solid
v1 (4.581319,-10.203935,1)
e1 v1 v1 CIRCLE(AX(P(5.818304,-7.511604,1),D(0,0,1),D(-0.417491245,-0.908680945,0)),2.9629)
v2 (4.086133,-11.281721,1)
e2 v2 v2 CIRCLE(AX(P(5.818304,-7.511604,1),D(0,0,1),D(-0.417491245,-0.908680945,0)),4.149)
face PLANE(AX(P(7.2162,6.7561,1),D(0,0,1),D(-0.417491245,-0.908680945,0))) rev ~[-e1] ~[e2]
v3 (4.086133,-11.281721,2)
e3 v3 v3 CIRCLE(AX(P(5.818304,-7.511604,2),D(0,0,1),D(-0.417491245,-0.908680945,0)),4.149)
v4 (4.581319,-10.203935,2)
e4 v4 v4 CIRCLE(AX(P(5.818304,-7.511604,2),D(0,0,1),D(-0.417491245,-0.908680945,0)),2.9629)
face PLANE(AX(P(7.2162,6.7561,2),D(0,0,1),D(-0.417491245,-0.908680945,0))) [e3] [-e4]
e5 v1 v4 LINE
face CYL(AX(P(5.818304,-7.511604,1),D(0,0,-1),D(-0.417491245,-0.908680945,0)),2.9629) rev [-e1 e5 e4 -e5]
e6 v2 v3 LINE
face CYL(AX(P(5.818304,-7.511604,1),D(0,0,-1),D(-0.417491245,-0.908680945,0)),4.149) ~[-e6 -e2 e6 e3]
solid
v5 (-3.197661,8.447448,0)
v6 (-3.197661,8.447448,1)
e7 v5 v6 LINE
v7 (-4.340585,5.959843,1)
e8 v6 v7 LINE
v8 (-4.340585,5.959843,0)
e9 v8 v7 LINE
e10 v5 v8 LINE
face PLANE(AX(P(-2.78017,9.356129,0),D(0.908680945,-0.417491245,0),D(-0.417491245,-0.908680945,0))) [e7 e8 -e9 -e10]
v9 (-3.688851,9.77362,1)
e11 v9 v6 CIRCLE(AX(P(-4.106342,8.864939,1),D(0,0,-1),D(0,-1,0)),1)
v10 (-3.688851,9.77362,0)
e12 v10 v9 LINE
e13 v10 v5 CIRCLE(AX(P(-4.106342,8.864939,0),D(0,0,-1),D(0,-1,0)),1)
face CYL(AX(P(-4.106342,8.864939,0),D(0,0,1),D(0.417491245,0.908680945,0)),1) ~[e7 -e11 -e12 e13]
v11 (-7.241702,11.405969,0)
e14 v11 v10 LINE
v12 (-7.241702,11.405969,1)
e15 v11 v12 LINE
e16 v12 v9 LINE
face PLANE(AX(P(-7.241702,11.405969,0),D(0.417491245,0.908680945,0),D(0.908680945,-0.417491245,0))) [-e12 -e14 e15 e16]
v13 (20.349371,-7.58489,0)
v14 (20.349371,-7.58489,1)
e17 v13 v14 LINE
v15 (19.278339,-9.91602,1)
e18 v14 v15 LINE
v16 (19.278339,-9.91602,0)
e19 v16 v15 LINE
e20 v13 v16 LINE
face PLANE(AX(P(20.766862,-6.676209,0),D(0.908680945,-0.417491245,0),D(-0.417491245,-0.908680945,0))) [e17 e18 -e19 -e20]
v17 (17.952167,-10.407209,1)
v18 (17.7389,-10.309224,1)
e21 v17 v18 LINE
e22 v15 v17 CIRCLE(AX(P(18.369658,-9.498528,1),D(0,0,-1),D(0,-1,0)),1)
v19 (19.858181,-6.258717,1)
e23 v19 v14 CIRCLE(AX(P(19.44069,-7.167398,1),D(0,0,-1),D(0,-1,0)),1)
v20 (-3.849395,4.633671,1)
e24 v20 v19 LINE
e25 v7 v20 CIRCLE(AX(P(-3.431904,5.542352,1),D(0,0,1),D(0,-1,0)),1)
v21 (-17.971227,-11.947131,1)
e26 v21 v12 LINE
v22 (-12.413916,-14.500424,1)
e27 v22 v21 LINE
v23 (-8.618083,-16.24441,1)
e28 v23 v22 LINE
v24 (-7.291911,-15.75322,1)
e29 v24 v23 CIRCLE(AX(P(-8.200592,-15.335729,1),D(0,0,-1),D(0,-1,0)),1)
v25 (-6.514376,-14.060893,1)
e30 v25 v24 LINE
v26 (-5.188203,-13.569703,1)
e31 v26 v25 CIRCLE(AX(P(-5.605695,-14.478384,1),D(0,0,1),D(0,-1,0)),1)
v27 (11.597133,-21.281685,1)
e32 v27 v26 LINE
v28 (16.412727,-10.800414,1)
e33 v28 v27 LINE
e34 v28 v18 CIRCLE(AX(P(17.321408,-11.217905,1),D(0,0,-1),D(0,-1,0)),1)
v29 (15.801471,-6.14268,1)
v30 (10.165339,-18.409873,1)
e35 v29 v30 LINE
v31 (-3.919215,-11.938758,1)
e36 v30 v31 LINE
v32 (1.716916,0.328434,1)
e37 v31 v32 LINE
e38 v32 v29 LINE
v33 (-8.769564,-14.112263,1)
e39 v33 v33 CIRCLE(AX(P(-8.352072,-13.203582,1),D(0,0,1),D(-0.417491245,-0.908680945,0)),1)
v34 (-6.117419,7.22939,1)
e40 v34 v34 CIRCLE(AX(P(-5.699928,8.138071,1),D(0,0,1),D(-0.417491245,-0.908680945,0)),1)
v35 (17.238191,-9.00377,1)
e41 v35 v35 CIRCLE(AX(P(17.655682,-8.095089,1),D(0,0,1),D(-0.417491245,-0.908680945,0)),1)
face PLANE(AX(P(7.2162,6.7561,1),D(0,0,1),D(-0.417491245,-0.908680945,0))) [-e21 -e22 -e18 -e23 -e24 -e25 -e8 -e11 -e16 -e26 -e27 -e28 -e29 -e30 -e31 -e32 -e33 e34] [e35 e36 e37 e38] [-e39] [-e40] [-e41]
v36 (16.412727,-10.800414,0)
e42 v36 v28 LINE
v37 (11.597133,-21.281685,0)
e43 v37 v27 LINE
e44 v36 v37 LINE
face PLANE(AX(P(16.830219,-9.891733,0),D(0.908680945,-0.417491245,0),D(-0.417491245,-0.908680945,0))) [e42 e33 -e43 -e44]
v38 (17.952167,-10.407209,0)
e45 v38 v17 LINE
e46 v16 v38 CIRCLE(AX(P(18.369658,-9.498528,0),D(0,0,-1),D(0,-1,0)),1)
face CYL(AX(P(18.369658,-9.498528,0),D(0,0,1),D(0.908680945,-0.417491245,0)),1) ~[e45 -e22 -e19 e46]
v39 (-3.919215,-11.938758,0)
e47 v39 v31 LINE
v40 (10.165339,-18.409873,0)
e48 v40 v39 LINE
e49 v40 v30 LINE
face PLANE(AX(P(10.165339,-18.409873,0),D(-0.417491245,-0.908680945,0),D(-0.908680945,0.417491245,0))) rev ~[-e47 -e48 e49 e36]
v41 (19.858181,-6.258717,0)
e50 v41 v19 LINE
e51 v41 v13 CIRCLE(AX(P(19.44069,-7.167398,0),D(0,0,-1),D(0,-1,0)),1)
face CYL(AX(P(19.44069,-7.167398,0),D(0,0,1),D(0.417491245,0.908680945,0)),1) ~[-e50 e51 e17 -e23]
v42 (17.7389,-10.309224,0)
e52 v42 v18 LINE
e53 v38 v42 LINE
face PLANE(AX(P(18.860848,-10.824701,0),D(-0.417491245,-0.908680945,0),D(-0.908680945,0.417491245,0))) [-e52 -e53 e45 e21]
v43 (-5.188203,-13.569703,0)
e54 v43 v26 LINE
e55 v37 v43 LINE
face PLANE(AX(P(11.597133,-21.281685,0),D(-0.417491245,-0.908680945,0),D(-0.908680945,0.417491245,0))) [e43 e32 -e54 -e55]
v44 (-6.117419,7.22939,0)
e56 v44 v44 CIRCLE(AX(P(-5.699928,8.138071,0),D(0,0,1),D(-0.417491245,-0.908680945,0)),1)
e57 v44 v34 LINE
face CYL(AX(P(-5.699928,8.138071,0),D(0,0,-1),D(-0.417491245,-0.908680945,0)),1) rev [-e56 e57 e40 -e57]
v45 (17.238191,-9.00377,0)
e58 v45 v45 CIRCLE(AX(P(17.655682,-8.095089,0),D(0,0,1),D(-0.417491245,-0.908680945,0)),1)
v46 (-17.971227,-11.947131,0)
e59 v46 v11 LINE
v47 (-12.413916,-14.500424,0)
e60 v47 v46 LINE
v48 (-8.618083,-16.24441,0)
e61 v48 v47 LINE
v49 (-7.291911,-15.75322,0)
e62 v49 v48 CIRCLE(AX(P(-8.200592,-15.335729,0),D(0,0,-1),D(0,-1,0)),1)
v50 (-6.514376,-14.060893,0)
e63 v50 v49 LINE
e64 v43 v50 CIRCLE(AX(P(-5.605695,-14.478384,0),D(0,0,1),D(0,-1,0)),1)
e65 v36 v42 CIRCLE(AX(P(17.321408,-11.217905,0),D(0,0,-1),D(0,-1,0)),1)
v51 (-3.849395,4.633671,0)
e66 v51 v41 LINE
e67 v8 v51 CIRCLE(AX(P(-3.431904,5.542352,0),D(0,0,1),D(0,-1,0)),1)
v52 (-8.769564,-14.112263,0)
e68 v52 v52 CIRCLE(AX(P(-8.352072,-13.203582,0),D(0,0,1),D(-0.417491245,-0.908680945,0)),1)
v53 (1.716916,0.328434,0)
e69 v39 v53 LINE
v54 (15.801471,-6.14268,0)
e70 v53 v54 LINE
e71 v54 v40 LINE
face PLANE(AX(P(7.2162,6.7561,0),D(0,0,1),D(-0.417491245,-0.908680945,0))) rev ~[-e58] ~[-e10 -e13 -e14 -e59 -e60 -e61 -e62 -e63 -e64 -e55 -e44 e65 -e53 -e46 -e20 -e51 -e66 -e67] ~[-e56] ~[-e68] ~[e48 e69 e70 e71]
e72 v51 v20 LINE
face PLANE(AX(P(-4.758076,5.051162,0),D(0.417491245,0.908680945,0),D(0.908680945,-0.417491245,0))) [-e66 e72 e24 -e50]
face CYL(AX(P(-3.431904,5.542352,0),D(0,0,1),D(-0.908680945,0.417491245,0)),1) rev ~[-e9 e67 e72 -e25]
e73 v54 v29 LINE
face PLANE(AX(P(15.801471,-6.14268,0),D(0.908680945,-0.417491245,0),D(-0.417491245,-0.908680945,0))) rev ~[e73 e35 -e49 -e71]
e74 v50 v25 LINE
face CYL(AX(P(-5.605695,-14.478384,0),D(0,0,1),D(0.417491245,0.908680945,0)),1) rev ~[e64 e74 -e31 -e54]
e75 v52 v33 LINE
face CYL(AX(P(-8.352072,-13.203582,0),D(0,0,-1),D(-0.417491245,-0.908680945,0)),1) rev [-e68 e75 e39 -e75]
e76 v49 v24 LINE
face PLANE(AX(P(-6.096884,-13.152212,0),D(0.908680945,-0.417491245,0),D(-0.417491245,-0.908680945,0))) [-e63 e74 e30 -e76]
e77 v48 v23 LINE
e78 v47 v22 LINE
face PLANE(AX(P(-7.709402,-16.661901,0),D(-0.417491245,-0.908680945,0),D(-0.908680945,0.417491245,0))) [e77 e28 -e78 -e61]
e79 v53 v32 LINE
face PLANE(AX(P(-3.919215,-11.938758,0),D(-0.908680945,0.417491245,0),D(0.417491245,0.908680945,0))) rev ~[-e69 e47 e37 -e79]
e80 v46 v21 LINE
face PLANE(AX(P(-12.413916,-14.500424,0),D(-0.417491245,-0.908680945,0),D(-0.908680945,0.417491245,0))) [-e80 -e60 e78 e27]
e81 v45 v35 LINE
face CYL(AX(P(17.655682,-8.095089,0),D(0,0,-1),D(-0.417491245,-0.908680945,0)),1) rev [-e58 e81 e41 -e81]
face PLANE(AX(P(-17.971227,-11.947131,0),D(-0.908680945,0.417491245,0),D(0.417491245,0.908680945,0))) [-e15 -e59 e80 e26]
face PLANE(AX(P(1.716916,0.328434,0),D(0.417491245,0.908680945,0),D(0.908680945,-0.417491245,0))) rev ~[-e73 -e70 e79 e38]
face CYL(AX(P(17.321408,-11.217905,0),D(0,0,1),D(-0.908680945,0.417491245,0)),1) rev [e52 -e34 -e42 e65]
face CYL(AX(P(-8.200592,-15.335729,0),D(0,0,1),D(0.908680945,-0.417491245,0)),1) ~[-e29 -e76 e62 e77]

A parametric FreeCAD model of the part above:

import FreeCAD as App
import Part
import Sketcher


def edges_at(feature, points):
    """Names of the edges that pass closest to the given points."""
    edges = feature.Shape.Edges
    near = lambda p: min(range(len(edges)), key=lambda i: edges[i].distToShape(Part.Vertex(*p))[0])
    return sorted({f"Edge{near(p) + 1}" for p in points})

doc = App.newDocument("Part")
params = doc.addObject("Spreadsheet::Sheet", "Params")
for row, (alias, value) in enumerate([
    ("sketch1_diameter", "2 mm"),
    ("sketch1_diameter2", "2 mm"),
    ("sketch1_diameter3", "2 mm"),
    ("sketch1_length", "25.7 mm"),
    ("sketch1_length2", "15.5 mm"),
    ("pad1_length", "1 mm"),
    ("fillet_radius", "1 mm"),
    ("pad2_length", "1 mm"),
], start=1):
    params.set(f"A{row}", alias)
    params.set(f"B{row}", "=" + value)
    params.setAlias(f"B{row}", alias)

body = doc.addObject("PartDesign::Body", "Body")
body.AllowCompound = True

# Sketch on XY plane
sketch1 = body.newObject("Sketcher::SketchObject", "Sketch")
sketch1.AttachmentSupport = (doc.getObject("XY_Plane"), [""])
sketch1.MapMode = "FlatFace"
sketch1.addGeometry([
    Part.LineSegment(App.Vector(11.597133, -21.281685, 0), App.Vector(16.830219, -9.891733, 0)),  # 0
    Part.LineSegment(App.Vector(16.830219, -9.891733, 0), App.Vector(18.860848, -10.824701, 0)),  # 1
    Part.LineSegment(App.Vector(18.860848, -10.824701, 0), App.Vector(20.766862, -6.676209, 0)),  # 2
    Part.LineSegment(App.Vector(20.766862, -6.676209, 0), App.Vector(-4.758076, 5.051162, 0)),  # 3
    Part.LineSegment(App.Vector(-4.758076, 5.051162, 0), App.Vector(-2.78017, 9.356129, 0)),  # 4
    Part.LineSegment(App.Vector(-2.78017, 9.356129, 0), App.Vector(-7.241702, 11.405969, 0)),  # 5
    Part.LineSegment(App.Vector(-7.241702, 11.405969, 0), App.Vector(-17.971227, -11.947131, 0)),  # 6
    Part.LineSegment(App.Vector(-17.971227, -11.947131, 0), App.Vector(-7.709402, -16.661901, 0)),  # 7
    Part.LineSegment(App.Vector(-7.709402, -16.661901, 0), App.Vector(-6.096884, -13.152212, 0)),  # 8
    Part.LineSegment(App.Vector(-6.096884, -13.152212, 0), App.Vector(11.597133, -21.281685, 0)),  # 9
    Part.Circle(App.Vector(-5.699928, 8.138071, 0), App.Vector(0, 0, 1), 1),  # 10
    Part.Circle(App.Vector(-8.352072, -13.203582, 0), App.Vector(0, 0, 1), 1),  # 11
    Part.Circle(App.Vector(17.655682, -8.095089, 0), App.Vector(0, 0, 1), 1),  # 12
    Part.LineSegment(App.Vector(10.165339, -18.409873, 0), App.Vector(-3.919215, -11.938758, 0)),  # 13
    Part.LineSegment(App.Vector(-3.919215, -11.938758, 0), App.Vector(1.716917, 0.328434, 0)),  # 14
    Part.LineSegment(App.Vector(1.716917, 0.328434, 0), App.Vector(15.801471, -6.14268, 0)),  # 15
    Part.LineSegment(App.Vector(15.801471, -6.14268, 0), App.Vector(10.165339, -18.409873, 0)),  # 16
], False)
sketch1.addConstraint([
    Sketcher.Constraint("Coincident", 0, 2, 1, 1),
    Sketcher.Constraint("Coincident", 1, 2, 2, 1),
    Sketcher.Constraint("Coincident", 2, 2, 3, 1),
    Sketcher.Constraint("Coincident", 3, 2, 4, 1),
    Sketcher.Constraint("Coincident", 4, 2, 5, 1),
    Sketcher.Constraint("Coincident", 5, 2, 6, 1),
    Sketcher.Constraint("Coincident", 6, 2, 7, 1),
    Sketcher.Constraint("Coincident", 7, 2, 8, 1),
    Sketcher.Constraint("Coincident", 8, 2, 9, 1),
    Sketcher.Constraint("Coincident", 9, 2, 0, 1),
    Sketcher.Constraint("Coincident", 13, 2, 14, 1),
    Sketcher.Constraint("Coincident", 14, 2, 15, 1),
    Sketcher.Constraint("Coincident", 15, 2, 16, 1),
    Sketcher.Constraint("Coincident", 16, 2, 13, 1),
    Sketcher.Constraint("Diameter", 10, 2.0),
    Sketcher.Constraint("Diameter", 11, 2.0),
    Sketcher.Constraint("Diameter", 12, 2.0),
    Sketcher.Constraint("Distance", 6, 25.7),
    Sketcher.Constraint("Distance", 13, 15.5),
    Sketcher.Constraint("Distance", 15, 15.5),
    Sketcher.Constraint("Distance", 14, 13.5),
    Sketcher.Constraint("Distance", 16, 13.5),
    Sketcher.Constraint("DistanceX", 10, 3, -1, 1, 5.7),
    Sketcher.Constraint("DistanceY", 7, 2, 10, 3, 24.8),
    Sketcher.Constraint("Distance", 3, 28.09),
    Sketcher.Constraint("Distance", 5, 4.91),
    Sketcher.Constraint("DistanceY", 9, 2, 0, 2, 11.39),
    Sketcher.Constraint("DistanceY", 13, 2, 3, 2, 16.99),
    Sketcher.Constraint("Distance", 7, 11.293),
    Sketcher.Constraint("DistanceY", -1, 1, 10, 3, 8.138),
    Sketcher.Constraint("DistanceX", 11, 3, -1, 1, 8.352),
    Sketcher.Constraint("DistanceY", 12, 3, -1, 1, 8.095),
    Sketcher.Constraint("DistanceX", 3, 2, -1, 1, 4.758),
    Sketcher.Constraint("DistanceY", -1, 1, 5, 2, 11.406),
    Sketcher.Constraint("DistanceX", 8, 2, -1, 1, 6.097),
    Sketcher.Constraint("DistanceX", -1, 1, 14, 2, 1.717),
    Sketcher.Constraint("DistanceY", 1, 2, 0, 2, 0.933),
    Sketcher.Constraint("DistanceX", 11, 3, 1, 2, 27.213),
    Sketcher.Constraint("DistanceY", 11, 3, 1, 2, 2.379),
    Sketcher.Constraint("DistanceY", 12, 3, 2, 2, 1.419),
    Sketcher.Constraint("DistanceX", 1, 2, 2, 2, 1.906),
    Sketcher.Constraint("DistanceY", 0, 2, 3, 2, 14.943),
    Sketcher.Constraint("DistanceY", 10, 3, 4, 2, 1.218),
    Sketcher.Constraint("DistanceX", 3, 2, 4, 2, 1.978),
    Sketcher.Constraint("DistanceY", 6, 2, 5, 2, 23.353),
    Sketcher.Constraint("DistanceY", 8, 2, 6, 2, 1.205),
    Sketcher.Constraint("DistanceX", 9, 2, 0, 2, 5.233),
    Sketcher.Constraint("DistanceX", 8, 2, 9, 2, 17.694),
    Sketcher.Constraint("DistanceX", 6, 2, 13, 2, 14.052),
    Sketcher.Constraint("DistanceY", 0, 2, 15, 2, 3.749),
    Sketcher.Constraint("DistanceX", -1, 1, 12, 3, 17.6557),
])
sketch1.setExpression("Constraints[14]", "Params.sketch1_diameter")
sketch1.setExpression("Constraints[15]", "Params.sketch1_diameter2")
sketch1.setExpression("Constraints[16]", "Params.sketch1_diameter3")
sketch1.setExpression("Constraints[17]", "Params.sketch1_length")
sketch1.setExpression("Constraints[18]", "Params.sketch1_length2")
pad1 = body.newObject("PartDesign::Pad", "Pad")
pad1.Profile = sketch1
pad1.setExpression("Length", "Params.pad1_length")
doc.recompute()

fillet = body.newObject("PartDesign::Fillet", "Fillet")
fillet.Base = (pad1, edges_at(pad1, [
    (20.767, -6.676, 0.5),
    (18.86, -10.825, 0.5),
    (16.83, -9.892, 0.5),
    (-6.097, -13.152, 0.5),
    (-7.71, -16.662, 0.5),
    (-2.78, 9.356, 0.5),
    (-4.758, 5.051, 0.5),
]))
fillet.setExpression("Radius", "Params.fillet_radius")

# Sketch on XY plane
sketch2 = body.newObject("Sketcher::SketchObject", "Sketch001")
sketch2.AttachmentSupport = (doc.getObject("XY_Plane"), [""])
sketch2.MapMode = "FlatFace"
sketch2.AttachmentOffset = App.Placement(App.Vector(0, 0, 1), App.Rotation())
sketch2.addGeometry([
    Part.Circle(App.Vector(5.8, -7.5, 0), App.Vector(0, 0, 1), 4.1),
    Part.Circle(App.Vector(5.8, -7.5, 0), App.Vector(0, 0, 1), 3),
], False)
sketch2.addConstraint([
    Sketcher.Constraint("Coincident", 1, 3, 0, 3),
    Sketcher.Constraint("Diameter", 0, 8.298),
    Sketcher.Constraint("Diameter", 1, 5.9258),
    Sketcher.Constraint("DistanceX", -1, 1, 0, 3, 5.8183),
    Sketcher.Constraint("DistanceY", 0, 3, -1, 1, 7.5116),
])
pad2 = body.newObject("PartDesign::Pad", "Pad001")
pad2.Profile = sketch2
pad2.setExpression("Length", "Params.pad2_length")

doc.recompute()
